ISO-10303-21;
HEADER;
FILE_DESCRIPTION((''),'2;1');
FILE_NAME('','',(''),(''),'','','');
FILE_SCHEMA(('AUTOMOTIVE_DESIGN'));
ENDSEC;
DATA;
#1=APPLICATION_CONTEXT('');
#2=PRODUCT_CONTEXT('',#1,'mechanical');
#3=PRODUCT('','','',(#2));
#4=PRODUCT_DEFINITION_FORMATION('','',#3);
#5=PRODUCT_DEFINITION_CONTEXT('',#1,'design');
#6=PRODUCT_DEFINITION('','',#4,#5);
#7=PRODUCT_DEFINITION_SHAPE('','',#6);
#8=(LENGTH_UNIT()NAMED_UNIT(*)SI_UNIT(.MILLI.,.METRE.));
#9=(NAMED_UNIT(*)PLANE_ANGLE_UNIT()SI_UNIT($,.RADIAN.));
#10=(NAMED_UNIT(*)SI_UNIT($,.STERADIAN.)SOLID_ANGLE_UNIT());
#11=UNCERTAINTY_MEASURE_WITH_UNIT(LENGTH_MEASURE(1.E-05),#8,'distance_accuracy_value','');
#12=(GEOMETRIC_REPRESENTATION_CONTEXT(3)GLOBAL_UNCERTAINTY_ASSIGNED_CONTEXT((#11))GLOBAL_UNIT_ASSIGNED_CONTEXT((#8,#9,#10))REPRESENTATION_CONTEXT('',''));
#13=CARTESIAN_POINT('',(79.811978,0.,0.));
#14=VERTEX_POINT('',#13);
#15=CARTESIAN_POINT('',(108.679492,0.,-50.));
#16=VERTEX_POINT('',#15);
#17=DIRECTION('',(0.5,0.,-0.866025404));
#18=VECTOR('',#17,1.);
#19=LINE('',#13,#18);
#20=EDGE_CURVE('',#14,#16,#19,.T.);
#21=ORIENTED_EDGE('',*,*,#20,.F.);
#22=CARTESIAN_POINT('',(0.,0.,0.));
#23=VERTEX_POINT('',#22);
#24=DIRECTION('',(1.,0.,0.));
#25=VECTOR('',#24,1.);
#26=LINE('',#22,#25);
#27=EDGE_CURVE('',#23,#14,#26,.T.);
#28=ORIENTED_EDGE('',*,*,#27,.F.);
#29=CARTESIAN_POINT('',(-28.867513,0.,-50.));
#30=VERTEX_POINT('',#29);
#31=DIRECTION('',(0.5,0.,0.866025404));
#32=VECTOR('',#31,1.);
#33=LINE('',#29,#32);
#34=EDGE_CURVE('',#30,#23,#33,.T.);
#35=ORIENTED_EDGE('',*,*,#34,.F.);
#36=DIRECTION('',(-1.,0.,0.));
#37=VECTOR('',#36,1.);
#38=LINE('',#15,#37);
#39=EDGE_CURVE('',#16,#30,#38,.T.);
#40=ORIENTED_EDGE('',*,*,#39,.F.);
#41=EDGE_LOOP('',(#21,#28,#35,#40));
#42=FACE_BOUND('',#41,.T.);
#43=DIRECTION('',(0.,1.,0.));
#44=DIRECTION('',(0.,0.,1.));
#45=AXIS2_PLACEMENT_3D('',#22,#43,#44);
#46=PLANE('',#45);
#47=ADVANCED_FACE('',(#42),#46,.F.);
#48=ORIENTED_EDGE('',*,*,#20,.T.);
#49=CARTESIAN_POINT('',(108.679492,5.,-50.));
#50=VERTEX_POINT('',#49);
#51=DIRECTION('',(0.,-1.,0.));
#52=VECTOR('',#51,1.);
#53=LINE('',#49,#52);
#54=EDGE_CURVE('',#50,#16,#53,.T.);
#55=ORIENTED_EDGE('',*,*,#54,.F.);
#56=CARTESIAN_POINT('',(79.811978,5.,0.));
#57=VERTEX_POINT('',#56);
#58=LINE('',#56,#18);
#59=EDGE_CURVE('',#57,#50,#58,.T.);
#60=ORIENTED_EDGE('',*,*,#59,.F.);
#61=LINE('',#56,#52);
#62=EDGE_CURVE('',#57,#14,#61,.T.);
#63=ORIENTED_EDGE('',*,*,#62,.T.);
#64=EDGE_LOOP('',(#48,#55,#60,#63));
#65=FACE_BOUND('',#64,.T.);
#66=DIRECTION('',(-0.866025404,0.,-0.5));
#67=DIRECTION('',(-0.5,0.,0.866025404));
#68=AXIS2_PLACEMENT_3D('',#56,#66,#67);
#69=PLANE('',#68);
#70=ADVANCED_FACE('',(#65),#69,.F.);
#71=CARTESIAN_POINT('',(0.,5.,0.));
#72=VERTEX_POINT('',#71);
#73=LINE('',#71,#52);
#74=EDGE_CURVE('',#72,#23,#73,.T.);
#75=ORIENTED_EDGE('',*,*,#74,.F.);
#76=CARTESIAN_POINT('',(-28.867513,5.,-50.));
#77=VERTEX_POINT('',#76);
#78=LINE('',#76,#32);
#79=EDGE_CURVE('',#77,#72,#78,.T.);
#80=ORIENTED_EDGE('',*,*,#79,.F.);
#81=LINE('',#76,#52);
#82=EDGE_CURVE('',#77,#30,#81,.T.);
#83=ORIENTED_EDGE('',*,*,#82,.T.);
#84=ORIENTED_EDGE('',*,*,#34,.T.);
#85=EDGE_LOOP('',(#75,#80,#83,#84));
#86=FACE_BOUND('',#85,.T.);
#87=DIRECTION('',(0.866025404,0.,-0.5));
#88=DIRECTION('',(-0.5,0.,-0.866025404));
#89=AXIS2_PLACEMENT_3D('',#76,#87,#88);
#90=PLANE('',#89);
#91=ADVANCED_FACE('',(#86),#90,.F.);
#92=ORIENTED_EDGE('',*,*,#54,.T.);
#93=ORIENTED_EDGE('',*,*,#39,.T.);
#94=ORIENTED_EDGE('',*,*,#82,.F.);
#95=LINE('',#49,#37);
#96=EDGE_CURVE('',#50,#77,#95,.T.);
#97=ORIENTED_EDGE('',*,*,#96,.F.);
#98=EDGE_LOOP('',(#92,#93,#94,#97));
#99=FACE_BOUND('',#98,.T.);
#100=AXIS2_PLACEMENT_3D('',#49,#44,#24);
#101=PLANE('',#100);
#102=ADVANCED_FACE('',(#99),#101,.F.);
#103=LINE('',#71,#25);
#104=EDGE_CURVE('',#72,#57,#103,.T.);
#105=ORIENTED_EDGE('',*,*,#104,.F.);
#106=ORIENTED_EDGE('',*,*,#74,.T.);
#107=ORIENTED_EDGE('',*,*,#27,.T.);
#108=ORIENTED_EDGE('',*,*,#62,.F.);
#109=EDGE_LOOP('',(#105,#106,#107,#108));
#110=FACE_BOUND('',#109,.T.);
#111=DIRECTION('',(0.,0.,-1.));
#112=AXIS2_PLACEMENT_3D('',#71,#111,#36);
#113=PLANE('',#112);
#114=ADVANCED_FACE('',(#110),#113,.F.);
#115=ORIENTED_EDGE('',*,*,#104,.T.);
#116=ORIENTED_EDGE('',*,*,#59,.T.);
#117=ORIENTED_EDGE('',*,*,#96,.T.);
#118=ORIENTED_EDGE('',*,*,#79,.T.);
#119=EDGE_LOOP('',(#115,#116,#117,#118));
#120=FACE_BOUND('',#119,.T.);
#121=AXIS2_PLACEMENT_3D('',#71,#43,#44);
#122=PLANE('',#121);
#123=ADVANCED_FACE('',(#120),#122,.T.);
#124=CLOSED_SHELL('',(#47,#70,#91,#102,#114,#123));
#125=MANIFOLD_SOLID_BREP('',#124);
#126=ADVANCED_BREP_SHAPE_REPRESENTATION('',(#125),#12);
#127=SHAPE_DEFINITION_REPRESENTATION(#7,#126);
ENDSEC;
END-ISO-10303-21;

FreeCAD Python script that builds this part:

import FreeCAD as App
import Part
import Sketcher
Q = App.Units.Quantity

doc = App.newDocument("Part")
body = doc.addObject("PartDesign::Body", "Body")

# Sketch on XZ plane
sketch1 = body.newObject("Sketcher::SketchObject", "Sketch")
sketch1.AttachmentSupport = (doc.getObject("XZ_Plane"), [""])
sketch1.MapMode = "FlatFace"
sketch1.addGeometry(Part.LineSegment(App.Vector(0, 0, 0), App.Vector(80, 0, 0)), False)
sketch1.addGeometry(Part.LineSegment(App.Vector(80, 0, 0), App.Vector(109, -50, 0)), False)
sketch1.addGeometry(Part.LineSegment(App.Vector(109, -50, 0), App.Vector(-29, -50, 0)), False)
sketch1.addGeometry(Part.LineSegment(App.Vector(-29, -50, 0), App.Vector(0, 0, 0)), False)
sketch1.addConstraint(Sketcher.Constraint("Coincident", 0, 2, 1, 1))
sketch1.addConstraint(Sketcher.Constraint("Coincident", 1, 2, 2, 1))
sketch1.addConstraint(Sketcher.Constraint("Coincident", 2, 2, 3, 1))
sketch1.addConstraint(Sketcher.Constraint("Coincident", 3, 2, 0, 1))
sketch1.addConstraint(Sketcher.Constraint("Horizontal", 0))
sketch1.addConstraint(Sketcher.Constraint("Horizontal", 2))
sketch1.addConstraint(Sketcher.Constraint("Coincident", 3, 2, -1, 1))
sketch1.addConstraint(Sketcher.Constraint("Equal", 1, 3))
sketch1.addConstraint(Sketcher.Constraint("Angle", 1, Q("-60 deg")))
sketch1.addConstraint(Sketcher.Constraint("DistanceY", 1, 2, -1, 1, 50.0))
sketch1.addConstraint(Sketcher.Constraint("DistanceX", 0, 1, 0, 2, 79.811978))
pad1 = body.newObject("PartDesign::Pad", "Pad")
pad1.Profile = sketch1
pad1.Length = 5
pad1.Reversed = True

doc.recompute()
